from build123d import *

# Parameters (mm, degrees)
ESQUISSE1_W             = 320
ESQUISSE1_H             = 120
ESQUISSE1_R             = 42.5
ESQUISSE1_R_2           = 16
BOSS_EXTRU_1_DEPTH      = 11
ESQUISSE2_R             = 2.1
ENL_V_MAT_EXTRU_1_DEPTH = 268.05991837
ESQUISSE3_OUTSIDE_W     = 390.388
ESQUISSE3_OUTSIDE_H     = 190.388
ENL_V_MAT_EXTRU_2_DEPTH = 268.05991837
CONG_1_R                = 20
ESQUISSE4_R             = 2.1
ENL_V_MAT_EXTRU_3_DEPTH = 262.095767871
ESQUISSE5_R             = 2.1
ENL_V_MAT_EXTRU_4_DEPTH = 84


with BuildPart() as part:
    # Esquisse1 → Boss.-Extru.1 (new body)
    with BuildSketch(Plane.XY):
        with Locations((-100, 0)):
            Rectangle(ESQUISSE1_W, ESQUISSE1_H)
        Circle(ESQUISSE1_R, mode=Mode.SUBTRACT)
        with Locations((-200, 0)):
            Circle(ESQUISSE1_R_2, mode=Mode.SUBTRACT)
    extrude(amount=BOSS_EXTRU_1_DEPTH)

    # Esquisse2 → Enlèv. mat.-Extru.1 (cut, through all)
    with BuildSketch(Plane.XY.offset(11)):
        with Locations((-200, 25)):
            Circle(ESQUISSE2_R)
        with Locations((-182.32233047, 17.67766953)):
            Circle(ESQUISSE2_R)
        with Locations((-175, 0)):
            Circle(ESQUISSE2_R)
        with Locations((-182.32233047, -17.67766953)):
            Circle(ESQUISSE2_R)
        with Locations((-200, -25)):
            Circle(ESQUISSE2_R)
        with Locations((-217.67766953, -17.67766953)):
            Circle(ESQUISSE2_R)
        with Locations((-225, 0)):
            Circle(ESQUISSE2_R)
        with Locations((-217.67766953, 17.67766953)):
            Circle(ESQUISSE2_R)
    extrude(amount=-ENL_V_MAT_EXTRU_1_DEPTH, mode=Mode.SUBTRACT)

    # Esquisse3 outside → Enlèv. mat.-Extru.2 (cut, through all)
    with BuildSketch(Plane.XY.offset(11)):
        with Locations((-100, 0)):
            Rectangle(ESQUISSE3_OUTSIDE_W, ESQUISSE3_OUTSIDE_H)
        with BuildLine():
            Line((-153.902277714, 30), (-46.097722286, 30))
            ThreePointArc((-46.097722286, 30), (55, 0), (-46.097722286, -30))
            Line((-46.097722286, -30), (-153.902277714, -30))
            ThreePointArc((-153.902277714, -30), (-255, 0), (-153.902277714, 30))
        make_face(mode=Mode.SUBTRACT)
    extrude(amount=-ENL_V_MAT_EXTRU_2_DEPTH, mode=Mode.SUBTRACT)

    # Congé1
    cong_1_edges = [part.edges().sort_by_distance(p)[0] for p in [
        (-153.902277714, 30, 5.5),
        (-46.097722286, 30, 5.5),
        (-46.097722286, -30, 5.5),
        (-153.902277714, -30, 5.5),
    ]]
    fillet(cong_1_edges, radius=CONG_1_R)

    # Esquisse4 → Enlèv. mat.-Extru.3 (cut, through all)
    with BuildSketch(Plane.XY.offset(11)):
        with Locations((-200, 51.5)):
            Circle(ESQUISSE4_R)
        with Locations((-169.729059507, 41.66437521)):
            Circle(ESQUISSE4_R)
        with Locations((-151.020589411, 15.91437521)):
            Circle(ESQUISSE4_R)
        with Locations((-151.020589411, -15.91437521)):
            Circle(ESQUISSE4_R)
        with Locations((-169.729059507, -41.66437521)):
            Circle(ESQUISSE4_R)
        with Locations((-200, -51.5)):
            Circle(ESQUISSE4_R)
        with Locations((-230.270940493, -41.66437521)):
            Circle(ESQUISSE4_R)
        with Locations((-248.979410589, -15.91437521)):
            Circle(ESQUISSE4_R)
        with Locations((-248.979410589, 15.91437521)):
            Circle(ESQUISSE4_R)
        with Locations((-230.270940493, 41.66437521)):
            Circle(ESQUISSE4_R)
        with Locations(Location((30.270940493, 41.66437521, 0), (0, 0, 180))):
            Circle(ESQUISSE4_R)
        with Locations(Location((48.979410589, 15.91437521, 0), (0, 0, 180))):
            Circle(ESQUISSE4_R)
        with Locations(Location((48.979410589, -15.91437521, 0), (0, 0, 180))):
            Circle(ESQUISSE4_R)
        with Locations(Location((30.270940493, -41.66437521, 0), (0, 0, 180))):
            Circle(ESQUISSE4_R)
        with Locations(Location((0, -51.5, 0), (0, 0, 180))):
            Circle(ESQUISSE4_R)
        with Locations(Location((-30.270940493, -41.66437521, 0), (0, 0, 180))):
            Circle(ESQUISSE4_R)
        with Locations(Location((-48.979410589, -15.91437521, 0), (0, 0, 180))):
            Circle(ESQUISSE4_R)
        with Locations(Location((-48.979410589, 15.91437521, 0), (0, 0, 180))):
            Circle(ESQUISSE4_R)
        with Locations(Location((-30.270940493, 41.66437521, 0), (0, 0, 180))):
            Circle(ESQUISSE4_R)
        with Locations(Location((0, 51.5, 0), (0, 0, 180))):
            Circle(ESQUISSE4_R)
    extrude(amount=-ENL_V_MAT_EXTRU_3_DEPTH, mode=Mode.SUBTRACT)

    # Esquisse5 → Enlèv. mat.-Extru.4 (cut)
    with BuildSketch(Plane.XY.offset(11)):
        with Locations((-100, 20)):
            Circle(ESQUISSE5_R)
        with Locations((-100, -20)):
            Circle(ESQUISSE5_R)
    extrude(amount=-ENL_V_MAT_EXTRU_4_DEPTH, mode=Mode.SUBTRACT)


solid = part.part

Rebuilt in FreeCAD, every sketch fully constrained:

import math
import FreeCAD as App
import Part
import Sketcher
Q = App.Units.Quantity


def edges_at(feature, points):
    """Names of the edges that pass closest to the given points."""
    edges = feature.Shape.Edges
    near = lambda p: min(range(len(edges)), key=lambda i: edges[i].distToShape(Part.Vertex(*p))[0])
    return sorted({f"Edge{near(p) + 1}" for p in points})


def add_polygon(sketch, points):
    """Adds a closed chain of lines whose ends are joined by coincident constraints."""
    first, n = sketch.GeometryCount, len(points)
    for a, b in zip(points, points[1:] + points[:1]):
        sketch.addGeometry(Part.LineSegment(App.Vector(*a, 0), App.Vector(*b, 0)), False)
    for i in range(n):
        sketch.addConstraint(Sketcher.Constraint("Coincident", first + i, 2, first + (i + 1) % n, 1))

doc = App.newDocument("Part")
body = doc.addObject("PartDesign::Body", "Body")

# Sketch on XY plane
sketch1 = body.newObject("Sketcher::SketchObject", "Sketch")
sketch1.AttachmentSupport = (doc.getObject("XY_Plane"), [""])
sketch1.MapMode = "FlatFace"
add_polygon(sketch1, [(-260, 60), (-260, -60), (60, -60), (60, 60)])  # lines 0-3
sketch1.addGeometry(Part.Circle(App.Vector(-200, 0, 0), App.Vector(0, 0, 1), 16), False)  # 4
sketch1.addGeometry(Part.Circle(App.Vector(0, 0, 0), App.Vector(0, 0, 1), 42.5), False)  # 5
sketch1.addConstraint([
    Sketcher.Constraint("Vertical", 0),
    Sketcher.Constraint("Horizontal", 1),
    Sketcher.Constraint("Vertical", 2),
    Sketcher.Constraint("Horizontal", 3),
    Sketcher.Constraint("Coincident", 5, 3, -1, 1),
    Sketcher.Constraint("PointOnObject", 4, 3, -1),
    Sketcher.Constraint("Diameter", 4, Q("32 mm")),
    Sketcher.Constraint("Diameter", 5, Q("85 mm")),
    Sketcher.Constraint("DistanceX", 1, 1, 1, 2, Q("320 mm")),
    Sketcher.Constraint("DistanceY", 0, 2, 0, 1, Q("120 mm")),
    Sketcher.Constraint("DistanceX", 4, 3, -1, 1, Q("200 mm")),
    Sketcher.Constraint("DistanceX", 0, 2, -1, 1, Q("260 mm")),
    Sketcher.Constraint("DistanceY", 0, 2, -1, 1, Q("60 mm")),
])
pad1 = body.newObject("PartDesign::Pad", "Pad")
pad1.Profile = sketch1
pad1.Length = 11

# Sketch on XY plane
sketch2 = body.newObject("Sketcher::SketchObject", "Sketch001")
sketch2.AttachmentSupport = (doc.getObject("XY_Plane"), [""])
sketch2.MapMode = "FlatFace"
sketch2.AttachmentOffset = App.Placement(App.Vector(0, 0, 11), App.Rotation())
sketch2.addGeometry([
    Part.Circle(App.Vector(-200, 25, 0), App.Vector(0, 0, 1), 2.1),  # 0
    Part.Circle(App.Vector(-182.32233, 17.67767, 0), App.Vector(0, 0, 1), 2.1),  # 1
    Part.Circle(App.Vector(-175, 0, 0), App.Vector(0, 0, 1), 2.1),  # 2
    Part.Circle(App.Vector(-182.32233, -17.67767, 0), App.Vector(0, 0, 1), 2.1),  # 3
    Part.Circle(App.Vector(-200, -25, 0), App.Vector(0, 0, 1), 2.1),  # 4
    Part.Circle(App.Vector(-217.67767, -17.67767, 0), App.Vector(0, 0, 1), 2.1),  # 5
    Part.Circle(App.Vector(-225, 0, 0), App.Vector(0, 0, 1), 2.1),  # 6
    Part.Circle(App.Vector(-217.67767, 17.67767, 0), App.Vector(0, 0, 1), 2.1),  # 7
], False)
sketch2.addConstraint([
    Sketcher.Constraint("Equal", 0, 1),
    Sketcher.Constraint("Equal", 1, 2),
    Sketcher.Constraint("Equal", 2, 3),
    Sketcher.Constraint("Equal", 3, 4),
    Sketcher.Constraint("Equal", 4, 5),
    Sketcher.Constraint("Equal", 5, 6),
    Sketcher.Constraint("Equal", 6, 7),
    Sketcher.Constraint("Symmetric", 1, 3, 3, 3, -1),
    Sketcher.Constraint("Symmetric", 0, 3, 4, 3, -1),
    Sketcher.Constraint("Symmetric", 5, 3, 7, 3, -1),
    Sketcher.Constraint("PointOnObject", 2, 3, -1),
    Sketcher.Constraint("PointOnObject", 6, 3, -1),
    Sketcher.Constraint("Horizontal", 3, 3, 5, 3),
    Sketcher.Constraint("Diameter", 0, Q("4.2 mm")),
    Sketcher.Constraint("DistanceX", 0, 3, -1, 1, Q("200 mm")),
    Sketcher.Constraint("DistanceY", -1, 1, 0, 3, Q("25 mm")),
    Sketcher.Constraint("DistanceX", 2, 3, -1, 1, Q("175 mm")),
    Sketcher.Constraint("DistanceX", 6, 3, -1, 1, Q("225 mm")),
    Sketcher.Constraint("DistanceX", 1, 3, -1, 1, Q("182.32233 mm")),
    Sketcher.Constraint("DistanceY", -1, 1, 1, 3, Q("17.67767 mm")),
    Sketcher.Constraint("DistanceX", 5, 3, -1, 1, Q("217.67767 mm")),
])
pocket1 = body.newObject("PartDesign::Pocket", "Pocket")
pocket1.Profile = sketch2
pocket1.Type = "ThroughAll"

# Sketch on XY plane
sketch3 = body.newObject("Sketcher::SketchObject", "Sketch002")
sketch3.AttachmentSupport = (doc.getObject("XY_Plane"), [""])
sketch3.MapMode = "FlatFace"
sketch3.AttachmentOffset = App.Placement(App.Vector(0, 0, 11), App.Rotation())
add_polygon(sketch3, [(-295.194, 95.194), (-295.194, -95.194), (95.194, -95.194), (95.194, 95.194)])  # lines 0-3
sketch3.addGeometry(Part.ArcOfCircle(Part.Circle(App.Vector(-200, 0, 0), App.Vector(0, 0, 1), 55), math.radians(33.055731), math.radians(326.944269)), False)  # 4
sketch3.addGeometry(Part.LineSegment(App.Vector(-153.902278, 30, 0), App.Vector(-46.097722, 30, 0)), False)  # 5
sketch3.addGeometry(Part.ArcOfCircle(Part.Circle(App.Vector(0, 0, 0), App.Vector(0, 0, 1), 55), math.radians(-146.944269), math.radians(146.944269)), False)  # 6
sketch3.addGeometry(Part.LineSegment(App.Vector(-46.097722, -30, 0), App.Vector(-153.902278, -30, 0)), False)  # 7
sketch3.addConstraint([
    Sketcher.Constraint("Coincident", 4, 1, 5, 1),
    Sketcher.Constraint("Coincident", 5, 2, 6, 2),
    Sketcher.Constraint("Coincident", 6, 1, 7, 1),
    Sketcher.Constraint("Coincident", 7, 2, 4, 2),
    Sketcher.Constraint("Vertical", 0),
    Sketcher.Constraint("Horizontal", 1),
    Sketcher.Constraint("Vertical", 2),
    Sketcher.Constraint("Horizontal", 3),
    Sketcher.Constraint("Horizontal", 5),
    Sketcher.Constraint("Horizontal", 7),
    Sketcher.Constraint("Coincident", 6, 3, -1, 1),
    Sketcher.Constraint("Equal", 4, 6),
    Sketcher.Constraint("Symmetric", 4, 1, 7, 2, -1),
    Sketcher.Constraint("Radius", 4, Q("55 mm")),
    Sketcher.Constraint("DistanceX", 4, 3, -1, 1, Q("200 mm")),
    Sketcher.Constraint("DistanceY", -1, 1, 4, 1, Q("30 mm")),
    Sketcher.Constraint("DistanceX", 1, 1, 1, 2, Q("390.388 mm")),
    Sketcher.Constraint("DistanceY", 0, 2, 0, 1, Q("190.388 mm")),
    Sketcher.Constraint("DistanceX", 0, 2, -1, 1, Q("295.194 mm")),
    Sketcher.Constraint("DistanceY", 0, 2, -1, 1, Q("95.194 mm")),
])
pocket2 = body.newObject("PartDesign::Pocket", "Pocket001")
pocket2.Profile = sketch3
pocket2.Type = "ThroughAll"
doc.recompute()

fillet = body.newObject("PartDesign::Fillet", "Fillet")
fillet.Base = (pocket2, edges_at(pocket2, [
    (-153.902, 30, 5.5),
    (-46.098, 30, 5.5),
    (-46.098, -30, 5.5),
    (-153.902, -30, 5.5),
]))
fillet.Radius = 20

# Sketch on XY plane
sketch4 = body.newObject("Sketcher::SketchObject", "Sketch003")
sketch4.AttachmentSupport = (doc.getObject("XY_Plane"), [""])
sketch4.MapMode = "FlatFace"
sketch4.AttachmentOffset = App.Placement(App.Vector(0, 0, 11), App.Rotation())
sketch4.addGeometry([
    Part.Circle(App.Vector(-200, 51.5, 0), App.Vector(0, 0, 1), 2.1),  # 0
    Part.Circle(App.Vector(-169.72906, 41.664375, 0), App.Vector(0, 0, 1), 2.1),  # 1
    Part.Circle(App.Vector(-151.020589, 15.914375, 0), App.Vector(0, 0, 1), 2.1),  # 2
    Part.Circle(App.Vector(-151.020589, -15.914375, 0), App.Vector(0, 0, 1), 2.1),  # 3
    Part.Circle(App.Vector(-169.72906, -41.664375, 0), App.Vector(0, 0, 1), 2.1),  # 4
    Part.Circle(App.Vector(-200, -51.5, 0), App.Vector(0, 0, 1), 2.1),  # 5
    Part.Circle(App.Vector(-230.27094, -41.664375, 0), App.Vector(0, 0, 1), 2.1),  # 6
    Part.Circle(App.Vector(-248.979411, -15.914375, 0), App.Vector(0, 0, 1), 2.1),  # 7
    Part.Circle(App.Vector(-248.979411, 15.914375, 0), App.Vector(0, 0, 1), 2.1),  # 8
    Part.Circle(App.Vector(-230.27094, 41.664375, 0), App.Vector(0, 0, 1), 2.1),  # 9
    Part.Circle(App.Vector(30.27094, 41.664375, 0), App.Vector(0, 0, 1), 2.1),  # 10
    Part.Circle(App.Vector(48.979411, 15.914375, 0), App.Vector(0, 0, 1), 2.1),  # 11
    Part.Circle(App.Vector(48.979411, -15.914375, 0), App.Vector(0, 0, 1), 2.1),  # 12
    Part.Circle(App.Vector(30.27094, -41.664375, 0), App.Vector(0, 0, 1), 2.1),  # 13
    Part.Circle(App.Vector(0, -51.5, 0), App.Vector(0, 0, 1), 2.1),  # 14
    Part.Circle(App.Vector(-30.27094, -41.664375, 0), App.Vector(0, 0, 1), 2.1),  # 15
    Part.Circle(App.Vector(-48.979411, -15.914375, 0), App.Vector(0, 0, 1), 2.1),  # 16
    Part.Circle(App.Vector(-48.979411, 15.914375, 0), App.Vector(0, 0, 1), 2.1),  # 17
    Part.Circle(App.Vector(-30.27094, 41.664375, 0), App.Vector(0, 0, 1), 2.1),  # 18
    Part.Circle(App.Vector(0, 51.5, 0), App.Vector(0, 0, 1), 2.1),  # 19
], False)
sketch4.addConstraint([
    Sketcher.Constraint("Equal", 0, 1),
    Sketcher.Constraint("Equal", 1, 2),
    Sketcher.Constraint("Equal", 2, 3),
    Sketcher.Constraint("Equal", 3, 4),
    Sketcher.Constraint("Equal", 4, 5),
    Sketcher.Constraint("Equal", 5, 6),
    Sketcher.Constraint("Equal", 6, 7),
    Sketcher.Constraint("Equal", 7, 8),
    Sketcher.Constraint("Equal", 8, 9),
    Sketcher.Constraint("Equal", 9, 10),
    Sketcher.Constraint("Equal", 10, 11),
    Sketcher.Constraint("Equal", 11, 12),
    Sketcher.Constraint("Equal", 12, 13),
    Sketcher.Constraint("Equal", 13, 14),
    Sketcher.Constraint("Equal", 14, 15),
    Sketcher.Constraint("Equal", 15, 16),
    Sketcher.Constraint("Equal", 16, 17),
    Sketcher.Constraint("Equal", 17, 18),
    Sketcher.Constraint("Equal", 18, 19),
    Sketcher.Constraint("Symmetric", 10, 3, 15, 3, -1, 1),
    Sketcher.Constraint("Symmetric", 11, 3, 16, 3, -1, 1),
    Sketcher.Constraint("Symmetric", 12, 3, 17, 3, -1, 1),
    Sketcher.Constraint("Symmetric", 13, 3, 18, 3, -1, 1),
    Sketcher.Constraint("Symmetric", 14, 3, 19, 3, -1, 1),
    Sketcher.Constraint("Symmetric", 13, 3, 15, 3, -2),
    Sketcher.Constraint("Symmetric", 12, 3, 16, 3, -2),
    Sketcher.Constraint("Symmetric", 2, 3, 3, 3, -1),
    Sketcher.Constraint("Symmetric", 1, 3, 4, 3, -1),
    Sketcher.Constraint("Symmetric", 0, 3, 5, 3, -1),
    Sketcher.Constraint("Symmetric", 7, 3, 8, 3, -1),
    Sketcher.Constraint("Symmetric", 6, 3, 9, 3, -1),
    Sketcher.Constraint("PointOnObject", 14, 3, -2),
    Sketcher.Constraint("Horizontal", 4, 3, 6, 3),
    Sketcher.Constraint("Horizontal", 3, 3, 7, 3),
    Sketcher.Constraint("Horizontal", 9, 3, 10, 3),
    Sketcher.Constraint("Horizontal", 8, 3, 11, 3),
    Sketcher.Constraint("Horizontal", 5, 3, 14, 3),
    Sketcher.Constraint("Diameter", 0, Q("4.2 mm")),
    Sketcher.Constraint("DistanceX", 0, 3, -1, 1, Q("200 mm")),
    Sketcher.Constraint("DistanceY", 5, 3, 0, 3, Q("103 mm")),
    Sketcher.Constraint("DistanceX", 1, 3, 10, 3, Q("200 mm")),
    Sketcher.Constraint("DistanceX", 2, 3, 11, 3, Q("200 mm")),
    Sketcher.Constraint("DistanceY", 2, 3, 1, 3, Q("25.75 mm")),
    Sketcher.Constraint("DistanceX", 1, 3, -1, 1, Q("169.72906 mm")),
    Sketcher.Constraint("DistanceX", 2, 3, -1, 1, Q("151.020589 mm")),
    Sketcher.Constraint("DistanceX", 6, 3, -1, 1, Q("230.27094 mm")),
    Sketcher.Constraint("DistanceX", 7, 3, -1, 1, Q("248.979411 mm")),
    Sketcher.Constraint("DistanceY", 3, 3, 2, 3, Q("31.82875 mm")),
])
pocket3 = body.newObject("PartDesign::Pocket", "Pocket002")
pocket3.Profile = sketch4
pocket3.Type = "ThroughAll"

# Sketch on XY plane
sketch5 = body.newObject("Sketcher::SketchObject", "Sketch004")
sketch5.AttachmentSupport = (doc.getObject("XY_Plane"), [""])
sketch5.MapMode = "FlatFace"
sketch5.AttachmentOffset = App.Placement(App.Vector(0, 0, 11), App.Rotation())
sketch5.addGeometry([
    Part.Circle(App.Vector(-100, 20, 0), App.Vector(0, 0, 1), 2.1),
    Part.Circle(App.Vector(-100, -20, 0), App.Vector(0, 0, 1), 2.1),
], False)
sketch5.addConstraint([
    Sketcher.Constraint("Equal", 0, 1),
    Sketcher.Constraint("Symmetric", 0, 3, 1, 3, -1),
    Sketcher.Constraint("Diameter", 0, Q("4.2 mm")),
    Sketcher.Constraint("DistanceX", 0, 3, -1, 1, Q("100 mm")),
    Sketcher.Constraint("DistanceY", -1, 1, 0, 3, Q("20 mm")),
])
pocket4 = body.newObject("PartDesign::Pocket", "Pocket003")
pocket4.Profile = sketch5
pocket4.Length = 84

doc.recompute()
